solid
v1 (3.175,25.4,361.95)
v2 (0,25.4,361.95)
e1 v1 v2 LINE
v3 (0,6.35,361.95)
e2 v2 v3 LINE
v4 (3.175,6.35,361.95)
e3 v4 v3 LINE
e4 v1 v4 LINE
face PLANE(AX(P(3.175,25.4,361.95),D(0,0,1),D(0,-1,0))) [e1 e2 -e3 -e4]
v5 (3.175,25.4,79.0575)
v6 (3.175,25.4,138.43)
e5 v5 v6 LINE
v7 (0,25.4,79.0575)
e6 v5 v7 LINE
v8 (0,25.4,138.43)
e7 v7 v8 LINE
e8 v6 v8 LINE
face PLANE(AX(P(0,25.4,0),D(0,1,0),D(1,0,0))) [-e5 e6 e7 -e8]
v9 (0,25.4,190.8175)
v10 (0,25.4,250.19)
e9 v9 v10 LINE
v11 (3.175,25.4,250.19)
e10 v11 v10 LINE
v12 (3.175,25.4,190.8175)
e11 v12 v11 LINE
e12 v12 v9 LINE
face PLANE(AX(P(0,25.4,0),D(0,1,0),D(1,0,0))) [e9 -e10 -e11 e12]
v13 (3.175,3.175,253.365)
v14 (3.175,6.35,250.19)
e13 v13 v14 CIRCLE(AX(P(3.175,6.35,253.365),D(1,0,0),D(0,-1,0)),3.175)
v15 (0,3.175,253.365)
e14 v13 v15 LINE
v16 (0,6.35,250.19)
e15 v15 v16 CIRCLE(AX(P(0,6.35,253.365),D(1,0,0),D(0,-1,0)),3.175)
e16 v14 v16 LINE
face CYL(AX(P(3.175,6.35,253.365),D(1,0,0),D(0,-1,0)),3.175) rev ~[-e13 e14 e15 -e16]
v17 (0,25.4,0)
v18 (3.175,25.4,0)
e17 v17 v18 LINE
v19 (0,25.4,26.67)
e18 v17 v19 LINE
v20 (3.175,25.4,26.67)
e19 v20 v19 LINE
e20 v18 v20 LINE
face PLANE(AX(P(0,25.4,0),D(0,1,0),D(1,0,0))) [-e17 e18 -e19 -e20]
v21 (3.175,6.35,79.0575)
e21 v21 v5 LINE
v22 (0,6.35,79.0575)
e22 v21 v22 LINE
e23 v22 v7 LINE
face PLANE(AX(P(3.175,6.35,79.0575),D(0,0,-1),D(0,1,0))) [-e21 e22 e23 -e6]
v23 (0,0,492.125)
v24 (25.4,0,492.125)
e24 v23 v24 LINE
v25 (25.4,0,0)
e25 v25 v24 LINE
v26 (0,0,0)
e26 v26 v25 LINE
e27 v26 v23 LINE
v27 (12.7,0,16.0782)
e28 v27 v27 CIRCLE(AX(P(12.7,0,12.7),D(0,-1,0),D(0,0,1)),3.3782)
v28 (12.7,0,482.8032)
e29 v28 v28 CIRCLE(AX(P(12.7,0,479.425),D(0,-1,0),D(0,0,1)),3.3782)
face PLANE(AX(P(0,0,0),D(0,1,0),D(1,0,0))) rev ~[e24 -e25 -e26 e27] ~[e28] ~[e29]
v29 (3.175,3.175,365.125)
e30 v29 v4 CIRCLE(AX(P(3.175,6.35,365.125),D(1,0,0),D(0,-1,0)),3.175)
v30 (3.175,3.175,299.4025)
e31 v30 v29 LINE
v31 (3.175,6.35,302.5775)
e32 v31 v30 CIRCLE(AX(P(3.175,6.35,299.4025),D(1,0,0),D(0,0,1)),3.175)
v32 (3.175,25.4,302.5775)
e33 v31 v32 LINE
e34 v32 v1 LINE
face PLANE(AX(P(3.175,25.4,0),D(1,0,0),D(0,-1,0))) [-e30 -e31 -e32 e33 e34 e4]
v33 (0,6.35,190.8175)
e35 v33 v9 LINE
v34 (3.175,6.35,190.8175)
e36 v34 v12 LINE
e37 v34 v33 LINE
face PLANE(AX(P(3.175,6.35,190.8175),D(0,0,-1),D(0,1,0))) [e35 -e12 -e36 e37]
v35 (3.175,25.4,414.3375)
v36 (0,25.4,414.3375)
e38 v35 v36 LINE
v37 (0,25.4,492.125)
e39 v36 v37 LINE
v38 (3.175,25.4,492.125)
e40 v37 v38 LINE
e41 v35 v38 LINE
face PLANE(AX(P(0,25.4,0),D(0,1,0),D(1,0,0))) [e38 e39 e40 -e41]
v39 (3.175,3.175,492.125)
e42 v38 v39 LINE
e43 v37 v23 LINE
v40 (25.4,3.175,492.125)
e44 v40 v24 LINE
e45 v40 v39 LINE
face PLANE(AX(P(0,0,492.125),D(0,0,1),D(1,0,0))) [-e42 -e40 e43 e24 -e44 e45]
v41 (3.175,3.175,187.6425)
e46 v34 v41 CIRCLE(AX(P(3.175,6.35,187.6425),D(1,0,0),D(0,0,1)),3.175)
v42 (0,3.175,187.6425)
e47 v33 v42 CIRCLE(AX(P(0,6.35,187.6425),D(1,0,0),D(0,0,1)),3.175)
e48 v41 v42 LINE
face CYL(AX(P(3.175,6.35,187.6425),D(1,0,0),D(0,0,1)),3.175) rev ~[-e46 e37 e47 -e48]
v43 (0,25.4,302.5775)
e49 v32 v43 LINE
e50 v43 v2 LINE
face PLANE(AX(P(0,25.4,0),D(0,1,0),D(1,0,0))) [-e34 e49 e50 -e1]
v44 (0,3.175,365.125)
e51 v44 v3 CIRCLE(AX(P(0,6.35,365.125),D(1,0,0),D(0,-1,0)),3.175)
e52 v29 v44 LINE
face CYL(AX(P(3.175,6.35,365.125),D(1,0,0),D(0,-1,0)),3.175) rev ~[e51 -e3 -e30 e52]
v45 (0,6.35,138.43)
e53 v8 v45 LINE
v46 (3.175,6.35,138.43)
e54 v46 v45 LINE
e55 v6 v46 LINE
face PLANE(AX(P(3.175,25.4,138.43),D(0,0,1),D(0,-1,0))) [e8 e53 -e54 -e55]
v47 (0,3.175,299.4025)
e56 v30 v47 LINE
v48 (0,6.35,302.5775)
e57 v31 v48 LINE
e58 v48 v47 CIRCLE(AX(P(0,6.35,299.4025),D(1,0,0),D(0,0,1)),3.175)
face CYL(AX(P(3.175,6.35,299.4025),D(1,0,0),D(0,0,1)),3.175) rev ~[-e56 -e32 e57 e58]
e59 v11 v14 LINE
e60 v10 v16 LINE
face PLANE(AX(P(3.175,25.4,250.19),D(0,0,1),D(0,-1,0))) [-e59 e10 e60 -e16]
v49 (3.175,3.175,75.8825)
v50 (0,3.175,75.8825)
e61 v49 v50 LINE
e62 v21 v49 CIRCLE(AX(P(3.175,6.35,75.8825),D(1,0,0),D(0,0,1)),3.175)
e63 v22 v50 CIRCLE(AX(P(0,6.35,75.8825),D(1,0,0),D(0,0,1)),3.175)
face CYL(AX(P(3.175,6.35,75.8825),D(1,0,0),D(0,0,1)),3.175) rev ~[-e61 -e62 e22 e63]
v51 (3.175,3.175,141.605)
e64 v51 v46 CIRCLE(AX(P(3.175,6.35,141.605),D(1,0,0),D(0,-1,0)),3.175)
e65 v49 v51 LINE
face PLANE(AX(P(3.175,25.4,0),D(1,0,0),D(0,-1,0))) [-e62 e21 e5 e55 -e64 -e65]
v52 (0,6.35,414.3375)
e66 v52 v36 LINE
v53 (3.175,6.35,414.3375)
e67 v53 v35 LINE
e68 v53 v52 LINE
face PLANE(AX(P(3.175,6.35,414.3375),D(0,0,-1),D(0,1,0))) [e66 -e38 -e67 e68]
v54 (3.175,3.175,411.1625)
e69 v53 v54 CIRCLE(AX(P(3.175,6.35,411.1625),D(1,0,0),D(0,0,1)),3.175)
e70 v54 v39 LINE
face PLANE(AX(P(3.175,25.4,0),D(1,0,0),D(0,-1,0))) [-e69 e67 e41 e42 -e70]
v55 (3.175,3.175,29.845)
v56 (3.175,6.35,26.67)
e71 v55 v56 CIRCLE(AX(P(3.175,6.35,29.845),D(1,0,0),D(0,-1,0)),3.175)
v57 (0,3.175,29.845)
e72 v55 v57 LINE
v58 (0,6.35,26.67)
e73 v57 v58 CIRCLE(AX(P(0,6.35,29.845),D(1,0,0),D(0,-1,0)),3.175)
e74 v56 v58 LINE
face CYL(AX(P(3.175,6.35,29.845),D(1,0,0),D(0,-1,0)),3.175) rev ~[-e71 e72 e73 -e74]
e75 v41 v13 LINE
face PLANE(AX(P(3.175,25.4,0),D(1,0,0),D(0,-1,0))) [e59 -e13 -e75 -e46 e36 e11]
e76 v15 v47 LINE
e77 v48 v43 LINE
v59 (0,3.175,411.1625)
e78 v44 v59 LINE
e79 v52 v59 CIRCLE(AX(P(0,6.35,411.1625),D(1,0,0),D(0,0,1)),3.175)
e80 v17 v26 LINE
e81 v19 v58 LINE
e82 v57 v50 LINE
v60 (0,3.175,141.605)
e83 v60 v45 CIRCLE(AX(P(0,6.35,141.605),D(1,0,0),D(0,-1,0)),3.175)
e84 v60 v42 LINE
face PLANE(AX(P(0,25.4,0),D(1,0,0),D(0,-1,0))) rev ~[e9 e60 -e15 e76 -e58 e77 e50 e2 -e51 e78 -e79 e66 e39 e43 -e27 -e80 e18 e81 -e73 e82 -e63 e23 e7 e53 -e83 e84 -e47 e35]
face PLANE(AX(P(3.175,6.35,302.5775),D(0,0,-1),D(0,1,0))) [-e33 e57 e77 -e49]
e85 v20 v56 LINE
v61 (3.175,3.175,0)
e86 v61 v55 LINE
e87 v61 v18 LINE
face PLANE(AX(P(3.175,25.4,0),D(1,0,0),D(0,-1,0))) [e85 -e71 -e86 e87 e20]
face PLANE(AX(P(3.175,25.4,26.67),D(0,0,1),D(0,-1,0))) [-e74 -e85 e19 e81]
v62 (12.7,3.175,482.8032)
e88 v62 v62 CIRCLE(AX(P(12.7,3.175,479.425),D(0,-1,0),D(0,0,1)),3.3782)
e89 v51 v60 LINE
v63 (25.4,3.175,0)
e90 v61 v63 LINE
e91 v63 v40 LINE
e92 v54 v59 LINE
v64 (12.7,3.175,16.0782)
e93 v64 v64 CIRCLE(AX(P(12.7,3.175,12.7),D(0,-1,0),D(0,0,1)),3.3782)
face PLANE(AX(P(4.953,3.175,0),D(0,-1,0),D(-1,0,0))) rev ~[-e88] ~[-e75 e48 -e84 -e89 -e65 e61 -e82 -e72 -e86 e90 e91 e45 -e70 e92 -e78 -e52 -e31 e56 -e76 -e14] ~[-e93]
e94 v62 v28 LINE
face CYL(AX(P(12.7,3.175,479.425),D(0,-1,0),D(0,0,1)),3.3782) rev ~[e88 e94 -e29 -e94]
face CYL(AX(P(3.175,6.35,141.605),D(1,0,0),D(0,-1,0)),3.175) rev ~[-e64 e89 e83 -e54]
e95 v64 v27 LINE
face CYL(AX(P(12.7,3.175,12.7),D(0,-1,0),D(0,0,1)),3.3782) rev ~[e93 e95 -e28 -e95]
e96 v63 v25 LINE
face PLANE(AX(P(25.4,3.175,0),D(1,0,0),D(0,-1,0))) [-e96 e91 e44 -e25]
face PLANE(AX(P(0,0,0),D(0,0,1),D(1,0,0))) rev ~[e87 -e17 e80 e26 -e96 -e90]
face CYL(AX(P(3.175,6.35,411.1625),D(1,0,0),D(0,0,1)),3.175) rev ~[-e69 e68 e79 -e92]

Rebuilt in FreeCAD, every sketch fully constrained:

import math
import FreeCAD as App
import Part
import Sketcher
Q = App.Units.Quantity


def add_polygon(sketch, points):
    """Adds a closed chain of lines whose ends are joined by coincident constraints."""
    first, n = sketch.GeometryCount, len(points)
    for a, b in zip(points, points[1:] + points[:1]):
        sketch.addGeometry(Part.LineSegment(App.Vector(*a, 0), App.Vector(*b, 0)), False)
    for i in range(n):
        sketch.addConstraint(Sketcher.Constraint("Coincident", first + i, 2, first + (i + 1) % n, 1))

doc = App.newDocument("Part")
params = doc.addObject("Spreadsheet::Sheet", "Params")
for row, (alias, value) in enumerate([
    ("sketch1_width", "1 in"),
    ("sketch1_width2", "0.125 in"),
    ("pad1_length", "19.375 in"),
    ("sketch2_diameter", "0.266 in"),
    ("hole_diameter", "0.266 in"),
    ("hole_depth", "1 in"),
    ("sketch3_radius", "0.125 in"),
    ("sketch3_height", "2.0625 in"),
    ("pocket1_length", "1 in"),
    ("linearpattern_pitch", "4.4 in"),
], start=1):
    params.set(f"A{row}", alias)
    params.set(f"B{row}", "=" + value)
    params.setAlias(f"B{row}", alias)

body = doc.addObject("PartDesign::Body", "Body")

sketch1 = body.newObject("Sketcher::SketchObject", "Sketch")
sketch1.AttachmentSupport = (doc.getObject("XY_Plane"), [""])
sketch1.MapMode = "FlatFace"
add_polygon(sketch1, [(3.2, 25.4), (0, 25.4), (0, 0), (25.4, 0), (25.4, 3.2), (3.2, 3.2)])
sketch1.addConstraint(Sketcher.Constraint("Horizontal", 0))
sketch1.addConstraint(Sketcher.Constraint("Vertical", 1))
sketch1.addConstraint(Sketcher.Constraint("Horizontal", 2))
sketch1.addConstraint(Sketcher.Constraint("Vertical", 3))
sketch1.addConstraint(Sketcher.Constraint("Horizontal", 4))
sketch1.addConstraint(Sketcher.Constraint("Vertical", 5))
sketch1.addConstraint(Sketcher.Constraint("Coincident", 1, 2, -1, 1))
sketch1.addConstraint(Sketcher.Constraint("Equal", 2, 1))
sketch1.addConstraint(Sketcher.Constraint("Equal", 0, 3))
sketch1.addConstraint(Sketcher.Constraint("DistanceX", 2, 1, 2, 2, Q("1 in")))
sketch1.addConstraint(Sketcher.Constraint("DistanceX", 0, 2, 0, 1, Q("0.125 in")))
sketch1.setExpression("Constraints[15]", "Params.sketch1_width")
sketch1.setExpression("Constraints[16]", "Params.sketch1_width2")
pad1 = body.newObject("PartDesign::Pad", "Pad")
pad1.Profile = sketch1
pad1.setExpression("Length", "Params.pad1_length")

sketch2 = body.newObject("Sketcher::SketchObject", "Sketch001")
sketch2.AttachmentSupport = (doc.getObject("XZ_Plane"), [""])
sketch2.MapMode = "FlatFace"
sketch2.AttachmentOffset = App.Placement(App.Vector(0, 0, -0.125 * 25.4), App.Rotation())
sketch2.addGeometry(Part.Circle(App.Vector(12.7, 479.4, 0), App.Vector(0, 0, 1), 3.4), False)
sketch2.addGeometry(Part.Circle(App.Vector(12.7, 12.7, 0), App.Vector(0, 0, 1), 3.4), False)
sketch2.addConstraint(Sketcher.Constraint("Equal", 0, 1))
sketch2.addConstraint(Sketcher.Constraint("Vertical", 0, 3, 1, 3))
sketch2.addConstraint(Sketcher.Constraint("Diameter", 0, Q("0.266 in")))
sketch2.addConstraint(Sketcher.Constraint("DistanceX", -1, 1, 0, 3, Q("0.5 in")))
sketch2.addConstraint(Sketcher.Constraint("DistanceY", -1, 1, 1, 3, Q("0.5 in")))
sketch2.addConstraint(Sketcher.Constraint("DistanceY", -1, 1, 0, 3, Q("18.875 in")))
sketch2.setExpression("Constraints[2]", "Params.sketch2_diameter")
doc.recompute()
hole = body.newObject("PartDesign::Hole", "Hole")
hole.Profile = sketch2
hole.ThreadType = "None"
hole.setExpression("Diameter", "Params.hole_diameter")
hole.DepthType = "Dimension"
hole.setExpression("Depth", "Params.hole_depth")
hole.DrillPoint = "Angled"
hole.DrillPointAngle = 118
hole.Reversed = True

sketch3 = body.newObject("Sketcher::SketchObject", "Sketch002")
sketch3.AttachmentSupport = (doc.getObject("YZ_Plane"), [""])
sketch3.MapMode = "FlatFace"
sketch3.AttachmentOffset = App.Placement(App.Vector(0, 0, 0.125 * 25.4), App.Rotation())
sketch3.addGeometry(Part.LineSegment(App.Vector(6.3, 361.9, 0), App.Vector(25.4, 361.9, 0)), False)
sketch3.addGeometry(Part.LineSegment(App.Vector(25.4, 361.9, 0), App.Vector(25.4, 414.3, 0)), False)
sketch3.addGeometry(Part.LineSegment(App.Vector(25.4, 414.3, 0), App.Vector(6.3, 414.3, 0)), False)
sketch3.addGeometry(Part.ArcOfCircle(Part.Circle(App.Vector(6.3, 411.2, 0), App.Vector(0, 0, 1), 3.2), math.radians(90), math.radians(180)), False)
sketch3.addGeometry(Part.LineSegment(App.Vector(3.2, 411.2, 0), App.Vector(3.2, 365.1, 0)), False)
sketch3.addGeometry(Part.ArcOfCircle(Part.Circle(App.Vector(6.3, 365.1, 0), App.Vector(0, 0, 1), 3.2), math.radians(180), math.radians(270)), False)
sketch3.addConstraint(Sketcher.Constraint("Coincident", 0, 2, 1, 1))
sketch3.addConstraint(Sketcher.Constraint("Coincident", 1, 2, 2, 1))
sketch3.addConstraint(Sketcher.Constraint("Tangent", 2, 2, 3, 1))
sketch3.addConstraint(Sketcher.Constraint("Tangent", 3, 2, 4, 1))
sketch3.addConstraint(Sketcher.Constraint("Tangent", 4, 2, 5, 1))
sketch3.addConstraint(Sketcher.Constraint("Tangent", 5, 2, 0, 1))
sketch3.addConstraint(Sketcher.Constraint("Horizontal", 0))
sketch3.addConstraint(Sketcher.Constraint("Vertical", 1))
sketch3.addConstraint(Sketcher.Constraint("Horizontal", 2))
sketch3.addConstraint(Sketcher.Constraint("Vertical", 4))
sketch3.addConstraint(Sketcher.Constraint("Equal", 3, 5))
sketch3.addConstraint(Sketcher.Constraint("Radius", 3, Q("0.125 in")))
sketch3.addConstraint(Sketcher.Constraint("DistanceY", 1, 1, 1, 2, Q("2.0625 in")))
sketch3.addConstraint(Sketcher.Constraint("DistanceX", -1, 1, 3, 2, Q("0.125 in")))
sketch3.addConstraint(Sketcher.Constraint("DistanceX", -1, 1, 0, 2, Q("1 in")))
sketch3.addConstraint(Sketcher.Constraint("DistanceY", -1, 1, 0, 2, Q("14.25 in")))
sketch3.setExpression("Constraints[11]", "Params.sketch3_radius")
sketch3.setExpression("Constraints[12]", "Params.sketch3_height")
pocket1 = body.newObject("PartDesign::Pocket", "Pocket")
pocket1.Profile = sketch3
pocket1.setExpression("Length", "Params.pocket1_length")
doc.recompute()

linearpattern = body.newObject("PartDesign::LinearPattern", "LinearPattern")
linearpattern.Originals = [pocket1]
linearpattern.Direction = (doc.getObject("Z_Axis"), [""])
linearpattern.Mode = "offset"
linearpattern.setExpression("Offset", "Params.linearpattern_pitch")
linearpattern.Occurrences = 4
linearpattern.Reversed = True
body.Tip = linearpattern

doc.recompute()
